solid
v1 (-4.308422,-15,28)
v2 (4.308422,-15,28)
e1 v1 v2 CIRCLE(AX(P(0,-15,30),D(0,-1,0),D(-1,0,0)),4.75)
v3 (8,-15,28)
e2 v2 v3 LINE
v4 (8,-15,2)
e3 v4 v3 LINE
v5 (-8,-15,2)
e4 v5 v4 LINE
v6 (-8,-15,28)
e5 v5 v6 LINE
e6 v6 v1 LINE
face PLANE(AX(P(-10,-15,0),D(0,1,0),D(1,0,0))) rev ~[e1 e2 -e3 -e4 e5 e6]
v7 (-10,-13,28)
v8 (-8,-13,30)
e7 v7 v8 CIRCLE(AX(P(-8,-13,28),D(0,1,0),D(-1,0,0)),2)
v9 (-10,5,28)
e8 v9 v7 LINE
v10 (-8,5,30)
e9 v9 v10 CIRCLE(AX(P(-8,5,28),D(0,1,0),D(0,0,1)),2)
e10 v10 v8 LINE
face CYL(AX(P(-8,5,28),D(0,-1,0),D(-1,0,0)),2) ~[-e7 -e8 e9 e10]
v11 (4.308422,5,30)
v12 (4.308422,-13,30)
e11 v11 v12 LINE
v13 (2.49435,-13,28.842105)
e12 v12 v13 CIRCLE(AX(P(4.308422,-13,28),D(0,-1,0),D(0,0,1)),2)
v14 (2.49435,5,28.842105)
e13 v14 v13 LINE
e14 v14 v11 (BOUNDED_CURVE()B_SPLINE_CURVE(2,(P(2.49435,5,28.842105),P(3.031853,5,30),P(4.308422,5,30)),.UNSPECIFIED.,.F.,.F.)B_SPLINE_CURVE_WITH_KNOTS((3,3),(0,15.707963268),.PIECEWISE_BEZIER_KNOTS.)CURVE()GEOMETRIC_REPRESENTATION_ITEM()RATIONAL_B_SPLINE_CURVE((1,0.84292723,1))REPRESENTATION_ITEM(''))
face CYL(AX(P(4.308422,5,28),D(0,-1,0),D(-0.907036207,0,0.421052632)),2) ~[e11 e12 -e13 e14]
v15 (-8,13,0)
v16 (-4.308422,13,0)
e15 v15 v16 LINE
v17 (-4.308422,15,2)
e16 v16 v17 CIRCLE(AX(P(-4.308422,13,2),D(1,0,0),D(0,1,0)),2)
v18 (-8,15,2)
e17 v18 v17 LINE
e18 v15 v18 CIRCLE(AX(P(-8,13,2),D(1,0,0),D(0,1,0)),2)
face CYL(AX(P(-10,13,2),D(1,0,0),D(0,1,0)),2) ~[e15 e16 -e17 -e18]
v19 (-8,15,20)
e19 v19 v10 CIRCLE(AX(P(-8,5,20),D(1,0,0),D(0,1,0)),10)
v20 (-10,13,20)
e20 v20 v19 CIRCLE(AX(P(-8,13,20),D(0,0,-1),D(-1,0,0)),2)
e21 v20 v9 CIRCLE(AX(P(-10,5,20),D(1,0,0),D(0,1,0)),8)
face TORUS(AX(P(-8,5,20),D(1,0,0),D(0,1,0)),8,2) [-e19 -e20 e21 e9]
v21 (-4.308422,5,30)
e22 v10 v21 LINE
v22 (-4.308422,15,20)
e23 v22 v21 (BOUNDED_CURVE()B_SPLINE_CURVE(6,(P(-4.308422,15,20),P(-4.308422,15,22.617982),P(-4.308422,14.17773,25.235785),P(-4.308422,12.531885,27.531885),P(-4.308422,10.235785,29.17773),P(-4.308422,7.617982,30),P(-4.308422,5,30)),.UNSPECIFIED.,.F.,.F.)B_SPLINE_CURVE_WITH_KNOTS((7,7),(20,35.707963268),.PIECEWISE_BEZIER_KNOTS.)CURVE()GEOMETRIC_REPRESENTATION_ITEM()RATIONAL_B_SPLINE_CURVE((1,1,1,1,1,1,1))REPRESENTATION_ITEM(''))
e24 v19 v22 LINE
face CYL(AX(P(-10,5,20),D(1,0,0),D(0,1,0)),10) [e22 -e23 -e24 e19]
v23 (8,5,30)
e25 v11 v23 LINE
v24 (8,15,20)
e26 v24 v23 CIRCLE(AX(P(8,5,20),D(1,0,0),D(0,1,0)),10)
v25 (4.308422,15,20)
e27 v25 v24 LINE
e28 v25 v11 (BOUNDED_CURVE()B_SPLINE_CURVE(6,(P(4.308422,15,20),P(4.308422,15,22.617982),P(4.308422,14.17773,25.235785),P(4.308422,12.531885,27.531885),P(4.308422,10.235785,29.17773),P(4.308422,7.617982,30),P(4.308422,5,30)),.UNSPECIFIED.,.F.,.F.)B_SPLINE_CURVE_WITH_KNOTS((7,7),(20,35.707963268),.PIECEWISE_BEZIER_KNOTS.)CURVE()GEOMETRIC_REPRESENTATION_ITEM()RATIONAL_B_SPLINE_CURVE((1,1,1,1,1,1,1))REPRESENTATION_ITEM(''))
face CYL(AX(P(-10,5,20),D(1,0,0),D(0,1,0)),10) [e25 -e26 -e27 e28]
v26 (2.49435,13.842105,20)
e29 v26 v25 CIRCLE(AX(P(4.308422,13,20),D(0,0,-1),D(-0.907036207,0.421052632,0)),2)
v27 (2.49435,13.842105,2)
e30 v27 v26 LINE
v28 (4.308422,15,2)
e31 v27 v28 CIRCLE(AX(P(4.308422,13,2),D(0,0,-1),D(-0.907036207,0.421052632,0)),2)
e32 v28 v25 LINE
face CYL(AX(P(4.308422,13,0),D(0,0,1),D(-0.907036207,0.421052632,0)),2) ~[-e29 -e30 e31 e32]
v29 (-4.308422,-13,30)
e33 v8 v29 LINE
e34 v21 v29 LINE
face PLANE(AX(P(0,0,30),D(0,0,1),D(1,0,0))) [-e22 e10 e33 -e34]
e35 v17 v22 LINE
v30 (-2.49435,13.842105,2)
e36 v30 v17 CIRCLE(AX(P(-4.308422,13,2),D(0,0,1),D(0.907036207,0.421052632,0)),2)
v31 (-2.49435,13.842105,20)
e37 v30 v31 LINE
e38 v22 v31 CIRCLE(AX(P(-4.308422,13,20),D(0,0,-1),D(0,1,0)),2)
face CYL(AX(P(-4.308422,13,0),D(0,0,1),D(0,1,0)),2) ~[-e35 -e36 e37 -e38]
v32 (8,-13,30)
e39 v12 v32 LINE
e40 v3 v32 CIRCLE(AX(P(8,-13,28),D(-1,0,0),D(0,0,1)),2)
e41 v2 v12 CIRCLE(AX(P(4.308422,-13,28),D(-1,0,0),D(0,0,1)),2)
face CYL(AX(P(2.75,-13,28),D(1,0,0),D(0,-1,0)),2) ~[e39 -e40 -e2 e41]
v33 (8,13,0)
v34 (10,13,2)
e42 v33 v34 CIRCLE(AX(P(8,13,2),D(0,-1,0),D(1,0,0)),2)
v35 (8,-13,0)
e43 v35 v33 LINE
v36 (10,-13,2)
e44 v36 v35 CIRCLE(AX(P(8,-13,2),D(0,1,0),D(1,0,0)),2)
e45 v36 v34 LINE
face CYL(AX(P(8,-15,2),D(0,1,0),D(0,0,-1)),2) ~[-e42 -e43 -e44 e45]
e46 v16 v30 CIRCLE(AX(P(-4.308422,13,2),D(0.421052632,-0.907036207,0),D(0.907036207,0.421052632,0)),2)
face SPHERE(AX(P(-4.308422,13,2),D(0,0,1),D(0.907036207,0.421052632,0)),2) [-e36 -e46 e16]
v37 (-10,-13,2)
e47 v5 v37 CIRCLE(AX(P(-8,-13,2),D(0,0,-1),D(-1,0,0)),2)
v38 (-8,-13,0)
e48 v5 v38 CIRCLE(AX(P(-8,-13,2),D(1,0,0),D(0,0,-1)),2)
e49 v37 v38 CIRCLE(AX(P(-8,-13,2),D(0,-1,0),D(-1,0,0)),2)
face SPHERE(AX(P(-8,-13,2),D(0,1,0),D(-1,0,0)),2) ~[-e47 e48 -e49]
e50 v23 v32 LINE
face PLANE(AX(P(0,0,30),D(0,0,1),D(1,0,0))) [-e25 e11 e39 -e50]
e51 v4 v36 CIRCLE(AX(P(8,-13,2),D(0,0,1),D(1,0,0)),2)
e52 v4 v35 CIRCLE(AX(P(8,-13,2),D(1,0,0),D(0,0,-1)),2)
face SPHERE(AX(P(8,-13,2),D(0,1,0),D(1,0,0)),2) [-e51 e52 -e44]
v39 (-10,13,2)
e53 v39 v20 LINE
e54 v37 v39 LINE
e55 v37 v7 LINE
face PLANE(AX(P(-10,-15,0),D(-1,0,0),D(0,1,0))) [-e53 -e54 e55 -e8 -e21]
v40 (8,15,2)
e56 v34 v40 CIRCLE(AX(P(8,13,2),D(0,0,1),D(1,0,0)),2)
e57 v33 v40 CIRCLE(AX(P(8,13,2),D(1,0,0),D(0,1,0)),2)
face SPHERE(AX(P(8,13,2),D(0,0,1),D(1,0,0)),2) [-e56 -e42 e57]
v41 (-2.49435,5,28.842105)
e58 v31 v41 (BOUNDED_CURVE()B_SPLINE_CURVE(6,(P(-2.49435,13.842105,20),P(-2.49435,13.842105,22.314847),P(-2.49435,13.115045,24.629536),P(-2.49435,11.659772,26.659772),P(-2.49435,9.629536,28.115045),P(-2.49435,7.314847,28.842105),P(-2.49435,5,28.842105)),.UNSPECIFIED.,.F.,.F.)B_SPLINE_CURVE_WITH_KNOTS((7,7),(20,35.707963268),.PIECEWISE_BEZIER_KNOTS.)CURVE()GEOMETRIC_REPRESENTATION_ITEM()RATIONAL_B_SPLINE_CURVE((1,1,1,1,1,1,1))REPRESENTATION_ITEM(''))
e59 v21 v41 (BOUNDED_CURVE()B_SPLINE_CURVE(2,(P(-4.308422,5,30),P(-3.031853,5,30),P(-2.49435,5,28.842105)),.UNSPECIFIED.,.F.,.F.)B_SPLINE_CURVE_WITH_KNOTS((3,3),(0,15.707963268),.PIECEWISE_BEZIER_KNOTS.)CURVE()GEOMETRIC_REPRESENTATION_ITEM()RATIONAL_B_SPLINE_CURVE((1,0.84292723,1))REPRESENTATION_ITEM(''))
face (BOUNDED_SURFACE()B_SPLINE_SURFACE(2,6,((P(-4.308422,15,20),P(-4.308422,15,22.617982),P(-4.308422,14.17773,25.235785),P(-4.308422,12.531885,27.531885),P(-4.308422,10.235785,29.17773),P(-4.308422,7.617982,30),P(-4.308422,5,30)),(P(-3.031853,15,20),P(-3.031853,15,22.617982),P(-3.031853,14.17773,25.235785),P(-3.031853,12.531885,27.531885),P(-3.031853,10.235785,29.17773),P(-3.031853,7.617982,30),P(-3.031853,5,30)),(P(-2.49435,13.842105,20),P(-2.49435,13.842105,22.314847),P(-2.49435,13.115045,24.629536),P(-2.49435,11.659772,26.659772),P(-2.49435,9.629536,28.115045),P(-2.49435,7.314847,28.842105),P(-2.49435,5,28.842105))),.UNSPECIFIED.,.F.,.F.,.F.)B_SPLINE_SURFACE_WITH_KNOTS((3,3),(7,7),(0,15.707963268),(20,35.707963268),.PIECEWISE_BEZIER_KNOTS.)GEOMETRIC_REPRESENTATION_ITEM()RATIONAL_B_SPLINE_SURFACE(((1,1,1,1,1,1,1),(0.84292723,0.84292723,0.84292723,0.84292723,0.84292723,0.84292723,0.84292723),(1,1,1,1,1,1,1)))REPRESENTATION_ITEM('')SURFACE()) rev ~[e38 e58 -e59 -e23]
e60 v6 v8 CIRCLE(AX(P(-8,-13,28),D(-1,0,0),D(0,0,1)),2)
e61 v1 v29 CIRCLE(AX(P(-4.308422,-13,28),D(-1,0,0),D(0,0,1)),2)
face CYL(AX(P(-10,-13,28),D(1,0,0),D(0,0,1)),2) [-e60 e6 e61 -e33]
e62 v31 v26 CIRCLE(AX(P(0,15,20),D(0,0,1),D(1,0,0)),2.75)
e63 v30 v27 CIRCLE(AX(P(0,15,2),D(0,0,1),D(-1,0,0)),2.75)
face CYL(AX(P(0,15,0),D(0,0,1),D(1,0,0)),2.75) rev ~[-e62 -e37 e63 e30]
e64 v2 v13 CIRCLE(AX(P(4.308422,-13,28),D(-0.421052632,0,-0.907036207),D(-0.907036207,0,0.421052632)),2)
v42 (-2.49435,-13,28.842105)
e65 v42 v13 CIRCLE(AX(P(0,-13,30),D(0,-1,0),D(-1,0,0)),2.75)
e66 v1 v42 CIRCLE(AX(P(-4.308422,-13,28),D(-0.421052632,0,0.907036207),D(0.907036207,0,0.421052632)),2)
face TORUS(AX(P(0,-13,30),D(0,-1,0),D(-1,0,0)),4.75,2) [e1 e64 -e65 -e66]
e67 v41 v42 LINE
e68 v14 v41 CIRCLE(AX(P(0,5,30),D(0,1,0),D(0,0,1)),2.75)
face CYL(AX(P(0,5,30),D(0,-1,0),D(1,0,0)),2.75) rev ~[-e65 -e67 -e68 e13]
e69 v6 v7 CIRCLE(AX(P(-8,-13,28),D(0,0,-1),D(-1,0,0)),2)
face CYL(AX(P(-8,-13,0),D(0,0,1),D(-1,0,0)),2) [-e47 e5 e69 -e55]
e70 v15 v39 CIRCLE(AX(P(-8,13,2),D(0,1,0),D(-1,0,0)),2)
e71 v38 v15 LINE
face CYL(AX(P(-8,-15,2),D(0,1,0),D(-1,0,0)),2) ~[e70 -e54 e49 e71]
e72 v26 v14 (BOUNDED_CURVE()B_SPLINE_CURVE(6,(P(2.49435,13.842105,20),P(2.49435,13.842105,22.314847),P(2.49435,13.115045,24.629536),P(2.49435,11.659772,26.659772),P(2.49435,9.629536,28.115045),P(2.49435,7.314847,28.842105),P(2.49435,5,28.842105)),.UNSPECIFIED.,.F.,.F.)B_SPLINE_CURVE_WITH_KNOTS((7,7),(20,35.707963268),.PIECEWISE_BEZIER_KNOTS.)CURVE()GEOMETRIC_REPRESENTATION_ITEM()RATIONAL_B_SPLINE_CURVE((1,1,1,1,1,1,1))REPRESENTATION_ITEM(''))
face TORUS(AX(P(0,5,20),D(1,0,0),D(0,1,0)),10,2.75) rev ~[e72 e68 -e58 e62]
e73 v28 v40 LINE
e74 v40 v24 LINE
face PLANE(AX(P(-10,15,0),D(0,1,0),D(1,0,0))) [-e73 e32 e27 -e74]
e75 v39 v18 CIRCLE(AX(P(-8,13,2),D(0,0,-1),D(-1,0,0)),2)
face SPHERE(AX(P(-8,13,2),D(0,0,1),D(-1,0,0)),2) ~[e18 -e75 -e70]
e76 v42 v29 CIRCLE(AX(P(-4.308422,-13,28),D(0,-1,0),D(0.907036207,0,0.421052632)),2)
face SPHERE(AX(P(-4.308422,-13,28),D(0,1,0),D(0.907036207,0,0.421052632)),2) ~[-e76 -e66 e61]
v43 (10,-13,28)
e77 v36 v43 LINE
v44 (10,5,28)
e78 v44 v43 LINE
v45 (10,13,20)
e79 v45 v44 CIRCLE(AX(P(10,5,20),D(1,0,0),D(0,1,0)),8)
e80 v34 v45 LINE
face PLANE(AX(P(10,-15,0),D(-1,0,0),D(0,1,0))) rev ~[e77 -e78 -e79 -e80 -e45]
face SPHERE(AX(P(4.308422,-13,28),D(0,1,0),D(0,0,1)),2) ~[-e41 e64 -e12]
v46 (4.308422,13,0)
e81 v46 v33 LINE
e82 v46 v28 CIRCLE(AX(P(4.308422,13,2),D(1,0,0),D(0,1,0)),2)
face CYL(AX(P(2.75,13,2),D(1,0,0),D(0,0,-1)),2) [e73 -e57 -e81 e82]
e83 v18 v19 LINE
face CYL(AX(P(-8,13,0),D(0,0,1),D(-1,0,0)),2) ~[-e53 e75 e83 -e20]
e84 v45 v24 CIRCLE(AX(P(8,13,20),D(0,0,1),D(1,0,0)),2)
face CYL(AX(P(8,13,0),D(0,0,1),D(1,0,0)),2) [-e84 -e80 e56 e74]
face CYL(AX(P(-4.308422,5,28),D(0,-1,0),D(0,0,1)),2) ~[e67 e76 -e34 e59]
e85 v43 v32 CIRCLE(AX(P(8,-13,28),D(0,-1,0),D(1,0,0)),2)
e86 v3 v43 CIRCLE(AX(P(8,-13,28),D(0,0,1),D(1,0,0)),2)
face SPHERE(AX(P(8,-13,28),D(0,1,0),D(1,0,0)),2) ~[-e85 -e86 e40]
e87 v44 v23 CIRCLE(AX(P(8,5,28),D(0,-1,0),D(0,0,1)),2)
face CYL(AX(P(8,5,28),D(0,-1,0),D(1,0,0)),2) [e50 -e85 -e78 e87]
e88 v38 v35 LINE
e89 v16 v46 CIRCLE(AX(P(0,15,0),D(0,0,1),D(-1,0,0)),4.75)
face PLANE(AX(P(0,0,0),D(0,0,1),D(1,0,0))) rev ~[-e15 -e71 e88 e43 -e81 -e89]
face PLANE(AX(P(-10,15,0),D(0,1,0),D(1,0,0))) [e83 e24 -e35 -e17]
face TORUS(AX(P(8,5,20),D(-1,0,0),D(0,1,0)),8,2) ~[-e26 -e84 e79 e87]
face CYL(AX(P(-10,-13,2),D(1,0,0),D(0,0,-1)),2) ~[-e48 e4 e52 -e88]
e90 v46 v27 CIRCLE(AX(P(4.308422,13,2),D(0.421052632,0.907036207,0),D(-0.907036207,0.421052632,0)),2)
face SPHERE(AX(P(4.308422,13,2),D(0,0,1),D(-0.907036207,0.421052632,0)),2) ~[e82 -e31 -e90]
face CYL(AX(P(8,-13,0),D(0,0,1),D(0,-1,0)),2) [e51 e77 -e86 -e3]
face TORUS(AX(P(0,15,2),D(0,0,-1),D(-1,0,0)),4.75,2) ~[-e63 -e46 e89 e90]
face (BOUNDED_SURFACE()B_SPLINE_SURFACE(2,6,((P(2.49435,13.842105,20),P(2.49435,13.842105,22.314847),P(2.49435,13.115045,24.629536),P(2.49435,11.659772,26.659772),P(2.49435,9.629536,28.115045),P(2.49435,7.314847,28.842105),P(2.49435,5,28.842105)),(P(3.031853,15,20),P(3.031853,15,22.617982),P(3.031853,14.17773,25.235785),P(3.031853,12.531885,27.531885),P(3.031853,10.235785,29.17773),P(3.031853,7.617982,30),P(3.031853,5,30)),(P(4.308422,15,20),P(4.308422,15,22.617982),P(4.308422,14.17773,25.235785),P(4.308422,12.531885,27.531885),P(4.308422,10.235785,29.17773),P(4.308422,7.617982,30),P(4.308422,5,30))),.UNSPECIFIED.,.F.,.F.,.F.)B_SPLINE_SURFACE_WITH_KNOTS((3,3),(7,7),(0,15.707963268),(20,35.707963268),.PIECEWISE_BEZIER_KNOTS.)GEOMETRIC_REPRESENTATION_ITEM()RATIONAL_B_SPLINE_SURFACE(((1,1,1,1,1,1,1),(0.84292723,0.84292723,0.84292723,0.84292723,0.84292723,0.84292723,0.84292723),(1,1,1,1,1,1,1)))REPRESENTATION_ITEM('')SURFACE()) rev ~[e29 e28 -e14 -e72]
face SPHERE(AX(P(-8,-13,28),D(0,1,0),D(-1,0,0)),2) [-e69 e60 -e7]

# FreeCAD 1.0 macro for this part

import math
import FreeCAD as App
import Part
import Sketcher
from FreeCAD import Vector


def edges_at(feature, points):
    """Names of the edges that pass closest to the given points."""
    edges = feature.Shape.Edges
    near = lambda p: min(range(len(edges)), key=lambda i: edges[i].distToShape(Part.Vertex(*p))[0])
    return sorted({f"Edge{near(p) + 1}" for p in points})

doc = App.newDocument("Part")
body = doc.addObject("PartDesign::Body", "Body")

# Sketch on XY plane
sketch1 = body.newObject("Sketcher::SketchObject", "Sketch")
sketch1.AttachmentSupport = (doc.getObject("XY_Plane"), [""])
sketch1.MapMode = "FlatFace"
sketch1.addGeometry(Part.Circle(Vector(0, 0, 0), Vector(0, 0, 1), 9.5), False)
sketch1.addGeometry(Part.Circle(Vector(0, 0, 0), Vector(0, 0, 1), 8), False)
sketch1.addConstraint(Sketcher.Constraint("Coincident", 0, 3, -1, 1))
sketch1.addConstraint(Sketcher.Constraint("Coincident", 1, 3, -1, 1))
sketch1.addConstraint(Sketcher.Constraint("Diameter", 0, 19.0))
sketch1.addConstraint(Sketcher.Constraint("Diameter", 1, 16.0))
pad1 = body.newObject("PartDesign::Pad", "Pad")
pad1.Profile = sketch1
pad1.Length = 150
body2 = doc.addObject("PartDesign::Body", "Body001")

# Sketch on XY plane
sketch2 = body2.newObject("Sketcher::SketchObject", "Sketch001")
sketch2.AttachmentSupport = (doc.getObject("XY_Plane001"), [""])
sketch2.MapMode = "FlatFace"
sketch2.addGeometry(Part.LineSegment(Vector(-10, 15, 0), Vector(-10, -15, 0)), False)
sketch2.addGeometry(Part.LineSegment(Vector(-10, -15, 0), Vector(10, -15, 0)), False)
sketch2.addGeometry(Part.LineSegment(Vector(10, -15, 0), Vector(10, 15, 0)), False)
sketch2.addGeometry(Part.LineSegment(Vector(10, 15, 0), Vector(-10, 15, 0)), False)
sketch2.addConstraint(Sketcher.Constraint("Coincident", 0, 2, 1, 1))
sketch2.addConstraint(Sketcher.Constraint("Coincident", 1, 2, 2, 1))
sketch2.addConstraint(Sketcher.Constraint("Coincident", 2, 2, 3, 1))
sketch2.addConstraint(Sketcher.Constraint("Coincident", 3, 2, 0, 1))
sketch2.addConstraint(Sketcher.Constraint("Vertical", 0))
sketch2.addConstraint(Sketcher.Constraint("Horizontal", 1))
sketch2.addConstraint(Sketcher.Constraint("Vertical", 2))
sketch2.addConstraint(Sketcher.Constraint("Horizontal", 3))
sketch2.addConstraint(Sketcher.Constraint("Symmetric", 0, 2, 2, 2, -1, 1))
sketch2.addConstraint(Sketcher.Constraint("DistanceX", 1, 1, 1, 2, 20.0))
sketch2.addConstraint(Sketcher.Constraint("DistanceY", 0, 2, 0, 1, 30.0))
pad2 = body2.newObject("PartDesign::Pad", "Pad001")
pad2.Profile = sketch2
pad2.Length = 30
doc.recompute()

fillet = body2.newObject("PartDesign::Fillet", "Fillet")
fillet.Base = (pad2, edges_at(pad2, [(0, 15, 30)]))
fillet.Radius = 10

# Sketch on XY plane
sketch3 = body2.newObject("Sketcher::SketchObject", "Sketch002")
sketch3.AttachmentSupport = (doc.getObject("XY_Plane001"), [""])
sketch3.MapMode = "FlatFace"
sketch3.addGeometry(Part.LineSegment(Vector(-2.75, 15, 0), Vector(2.75, 15, 0)), False)
sketch3.addGeometry(Part.ArcOfCircle(Part.Circle(Vector(0, 15, 0), Vector(0, 0, 1), 2.75), math.radians(180), math.radians(360)), False)
sketch3.addConstraint(Sketcher.Constraint("Coincident", 0, 1, 1, 1))
sketch3.addConstraint(Sketcher.Constraint("Coincident", 1, 2, 0, 2))
sketch3.addConstraint(Sketcher.Constraint("Horizontal", 0))
sketch3.addConstraint(Sketcher.Constraint("PointOnObject", 1, 3, -2))
sketch3.addConstraint(Sketcher.Constraint("Horizontal", 1, 3, 0, 1))
sketch3.addConstraint(Sketcher.Constraint("Radius", 1, 2.75))
sketch3.addConstraint(Sketcher.Constraint("DistanceY", -1, 1, 1, 3, 15.0))

# Sketch on YZ plane
sketch4 = body2.newObject("Sketcher::SketchObject", "Sketch003")
sketch4.AttachmentSupport = (doc.getObject("YZ_Plane001"), [""])
sketch4.MapMode = "FlatFace"
sketch4.addGeometry(Part.LineSegment(Vector(15, 0, 0), Vector(15, 20, 0)), False)
sketch4.addGeometry(Part.ArcOfCircle(Part.Circle(Vector(5, 20, 0), Vector(0, 0, 1), 10), math.radians(0), math.radians(90)), False)
sketch4.addGeometry(Part.LineSegment(Vector(5, 30, 0), Vector(-15.058537, 30, 0)), False)
sketch4.addConstraint(Sketcher.Constraint("Tangent", 0, 2, 1, 1))
sketch4.addConstraint(Sketcher.Constraint("Tangent", 1, 2, 2, 1))
sketch4.addConstraint(Sketcher.Constraint("Vertical", 0))
sketch4.addConstraint(Sketcher.Constraint("Horizontal", 2))
sketch4.addConstraint(Sketcher.Constraint("PointOnObject", 0, 1, -1))
sketch4.addConstraint(Sketcher.Constraint("Radius", 1, 10.0))
sketch4.addConstraint(Sketcher.Constraint("DistanceY", 0, 1, 0, 2, 20.0))
sketch4.addConstraint(Sketcher.Constraint("DistanceX", -1, 1, 1, 3, 5.0))
sketch4.addConstraint(Sketcher.Constraint("DistanceX", 2, 2, 2, 1, 20.058537))
doc.recompute()

subtractivepipe = body2.newObject("PartDesign::SubtractivePipe", "SubtractivePipe")
subtractivepipe.Profile = sketch3
subtractivepipe.Spine = (sketch4, ["Edge1", "Edge2", "Edge3"])
doc.recompute()

fillet2 = body2.newObject("PartDesign::Fillet", "Fillet001")
fillet2.Base = (subtractivepipe, ["Edge1"])
fillet2.UseAllEdges = True
fillet2.Radius = 2
body.Visibility = False

doc.recompute()
